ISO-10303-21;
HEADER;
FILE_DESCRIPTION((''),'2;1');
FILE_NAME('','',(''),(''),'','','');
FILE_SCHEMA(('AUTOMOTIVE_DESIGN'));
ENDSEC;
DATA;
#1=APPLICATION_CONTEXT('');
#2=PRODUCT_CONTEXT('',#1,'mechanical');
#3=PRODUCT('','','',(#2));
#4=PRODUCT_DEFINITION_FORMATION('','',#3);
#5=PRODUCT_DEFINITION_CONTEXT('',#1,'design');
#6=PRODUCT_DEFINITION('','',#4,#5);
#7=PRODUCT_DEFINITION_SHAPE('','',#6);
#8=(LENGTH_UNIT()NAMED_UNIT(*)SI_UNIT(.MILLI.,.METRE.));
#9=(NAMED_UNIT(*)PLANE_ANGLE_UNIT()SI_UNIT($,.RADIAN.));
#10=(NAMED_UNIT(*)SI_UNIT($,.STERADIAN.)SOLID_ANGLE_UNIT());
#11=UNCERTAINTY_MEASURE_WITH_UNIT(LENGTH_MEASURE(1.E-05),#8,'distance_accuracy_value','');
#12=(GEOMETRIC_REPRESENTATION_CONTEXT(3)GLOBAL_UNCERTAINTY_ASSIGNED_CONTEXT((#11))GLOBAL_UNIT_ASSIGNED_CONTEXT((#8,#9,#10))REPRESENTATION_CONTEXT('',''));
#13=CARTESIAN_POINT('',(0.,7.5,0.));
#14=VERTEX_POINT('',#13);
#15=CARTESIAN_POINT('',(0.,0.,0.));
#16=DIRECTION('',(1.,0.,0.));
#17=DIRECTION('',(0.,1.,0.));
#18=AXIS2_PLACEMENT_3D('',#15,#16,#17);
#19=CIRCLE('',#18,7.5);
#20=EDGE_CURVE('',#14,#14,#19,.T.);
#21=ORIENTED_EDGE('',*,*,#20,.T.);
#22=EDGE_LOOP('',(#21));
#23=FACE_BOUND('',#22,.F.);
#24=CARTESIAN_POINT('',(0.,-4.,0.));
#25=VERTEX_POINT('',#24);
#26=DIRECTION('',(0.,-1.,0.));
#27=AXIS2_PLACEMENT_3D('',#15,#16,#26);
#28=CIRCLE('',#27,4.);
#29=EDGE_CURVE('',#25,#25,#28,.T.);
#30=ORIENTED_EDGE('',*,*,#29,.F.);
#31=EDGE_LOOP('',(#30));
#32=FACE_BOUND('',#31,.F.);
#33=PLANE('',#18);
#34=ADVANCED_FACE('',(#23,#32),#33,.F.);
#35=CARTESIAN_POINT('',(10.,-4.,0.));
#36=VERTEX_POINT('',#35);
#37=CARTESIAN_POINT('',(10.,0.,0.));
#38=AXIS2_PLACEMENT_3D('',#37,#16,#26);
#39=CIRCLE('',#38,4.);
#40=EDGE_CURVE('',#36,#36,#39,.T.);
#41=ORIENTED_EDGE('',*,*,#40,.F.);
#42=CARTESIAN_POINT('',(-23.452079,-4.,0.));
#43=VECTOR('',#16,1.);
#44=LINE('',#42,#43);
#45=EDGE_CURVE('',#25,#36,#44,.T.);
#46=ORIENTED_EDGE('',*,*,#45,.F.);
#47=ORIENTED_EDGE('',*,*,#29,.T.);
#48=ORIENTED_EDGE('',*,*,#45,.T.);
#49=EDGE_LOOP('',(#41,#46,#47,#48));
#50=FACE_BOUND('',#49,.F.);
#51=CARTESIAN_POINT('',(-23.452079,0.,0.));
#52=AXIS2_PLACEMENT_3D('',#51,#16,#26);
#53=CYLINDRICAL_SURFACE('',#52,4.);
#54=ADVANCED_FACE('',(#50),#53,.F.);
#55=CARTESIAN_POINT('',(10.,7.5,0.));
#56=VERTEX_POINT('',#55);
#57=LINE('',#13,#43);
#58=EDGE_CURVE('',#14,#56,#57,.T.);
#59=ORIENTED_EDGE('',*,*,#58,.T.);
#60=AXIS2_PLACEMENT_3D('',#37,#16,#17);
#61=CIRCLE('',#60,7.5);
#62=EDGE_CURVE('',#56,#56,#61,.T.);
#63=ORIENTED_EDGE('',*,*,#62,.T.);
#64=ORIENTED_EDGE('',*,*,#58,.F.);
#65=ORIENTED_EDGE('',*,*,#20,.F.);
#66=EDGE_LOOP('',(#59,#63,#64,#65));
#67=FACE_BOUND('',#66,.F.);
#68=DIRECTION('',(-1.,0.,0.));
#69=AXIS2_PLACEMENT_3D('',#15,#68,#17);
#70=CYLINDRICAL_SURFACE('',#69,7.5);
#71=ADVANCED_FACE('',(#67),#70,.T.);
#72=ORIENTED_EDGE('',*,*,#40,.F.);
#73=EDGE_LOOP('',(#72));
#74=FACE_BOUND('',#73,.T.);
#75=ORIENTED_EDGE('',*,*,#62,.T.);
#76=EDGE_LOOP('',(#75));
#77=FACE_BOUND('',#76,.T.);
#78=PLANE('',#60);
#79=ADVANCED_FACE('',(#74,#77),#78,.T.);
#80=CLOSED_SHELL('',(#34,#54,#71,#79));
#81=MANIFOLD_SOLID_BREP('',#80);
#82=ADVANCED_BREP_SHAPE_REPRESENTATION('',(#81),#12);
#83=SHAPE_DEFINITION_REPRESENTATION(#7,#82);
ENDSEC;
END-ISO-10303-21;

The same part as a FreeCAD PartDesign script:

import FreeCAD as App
import Part
import Sketcher

V = App.Vector

doc = App.newDocument("Part")
params = doc.addObject("Spreadsheet::Sheet", "Params")
for row, (alias, value) in enumerate([
    ("sketch1_diameter", "15 mm"),
    ("pad1_length", "10 mm"),
    ("sketch2_diameter", "8 mm"),
    ("hole_diameter", "8 mm"),
], start=1):
    params.set(f"A{row}", alias)
    params.set(f"B{row}", "=" + value)
    params.setAlias(f"B{row}", alias)

body = doc.addObject("PartDesign::Body", "Body")

sketch1 = body.newObject("Sketcher::SketchObject", "Sketch")
sketch1.AttachmentSupport = (doc.getObject("YZ_Plane"), [""])
sketch1.MapMode = "FlatFace"
sketch1.addGeometry(Part.Circle(V(0, 0, 0), V(0, 0, 1), 7.5), False)
sketch1.addConstraint(Sketcher.Constraint("Coincident", 0, 3, -1, 1))
sketch1.addConstraint(Sketcher.Constraint("Diameter", 0, 15.0))
sketch1.setExpression("Constraints[1]", "Params.sketch1_diameter")
pad1 = body.newObject("PartDesign::Pad", "Pad")
pad1.Profile = sketch1
pad1.setExpression("Length", "Params.pad1_length")

sketch2 = body.newObject("Sketcher::SketchObject", "Sketch001")
sketch2.AttachmentSupport = (doc.getObject("YZ_Plane"), [""])
sketch2.MapMode = "FlatFace"
sketch2.addGeometry(Part.Circle(V(0, 0, 0), V(0, 0, 1), 4), False)
sketch2.addConstraint(Sketcher.Constraint("Coincident", 0, 3, -1, 1))
sketch2.addConstraint(Sketcher.Constraint("Diameter", 0, 8.0))
sketch2.setExpression("Constraints[1]", "Params.sketch2_diameter")
doc.recompute()
hole = body.newObject("PartDesign::Hole", "Hole")
hole.Profile = sketch2
hole.ThreadType = "None"
hole.setExpression("Diameter", "Params.hole_diameter")
hole.DepthType = "ThroughAll"
hole.Reversed = True

doc.recompute()
